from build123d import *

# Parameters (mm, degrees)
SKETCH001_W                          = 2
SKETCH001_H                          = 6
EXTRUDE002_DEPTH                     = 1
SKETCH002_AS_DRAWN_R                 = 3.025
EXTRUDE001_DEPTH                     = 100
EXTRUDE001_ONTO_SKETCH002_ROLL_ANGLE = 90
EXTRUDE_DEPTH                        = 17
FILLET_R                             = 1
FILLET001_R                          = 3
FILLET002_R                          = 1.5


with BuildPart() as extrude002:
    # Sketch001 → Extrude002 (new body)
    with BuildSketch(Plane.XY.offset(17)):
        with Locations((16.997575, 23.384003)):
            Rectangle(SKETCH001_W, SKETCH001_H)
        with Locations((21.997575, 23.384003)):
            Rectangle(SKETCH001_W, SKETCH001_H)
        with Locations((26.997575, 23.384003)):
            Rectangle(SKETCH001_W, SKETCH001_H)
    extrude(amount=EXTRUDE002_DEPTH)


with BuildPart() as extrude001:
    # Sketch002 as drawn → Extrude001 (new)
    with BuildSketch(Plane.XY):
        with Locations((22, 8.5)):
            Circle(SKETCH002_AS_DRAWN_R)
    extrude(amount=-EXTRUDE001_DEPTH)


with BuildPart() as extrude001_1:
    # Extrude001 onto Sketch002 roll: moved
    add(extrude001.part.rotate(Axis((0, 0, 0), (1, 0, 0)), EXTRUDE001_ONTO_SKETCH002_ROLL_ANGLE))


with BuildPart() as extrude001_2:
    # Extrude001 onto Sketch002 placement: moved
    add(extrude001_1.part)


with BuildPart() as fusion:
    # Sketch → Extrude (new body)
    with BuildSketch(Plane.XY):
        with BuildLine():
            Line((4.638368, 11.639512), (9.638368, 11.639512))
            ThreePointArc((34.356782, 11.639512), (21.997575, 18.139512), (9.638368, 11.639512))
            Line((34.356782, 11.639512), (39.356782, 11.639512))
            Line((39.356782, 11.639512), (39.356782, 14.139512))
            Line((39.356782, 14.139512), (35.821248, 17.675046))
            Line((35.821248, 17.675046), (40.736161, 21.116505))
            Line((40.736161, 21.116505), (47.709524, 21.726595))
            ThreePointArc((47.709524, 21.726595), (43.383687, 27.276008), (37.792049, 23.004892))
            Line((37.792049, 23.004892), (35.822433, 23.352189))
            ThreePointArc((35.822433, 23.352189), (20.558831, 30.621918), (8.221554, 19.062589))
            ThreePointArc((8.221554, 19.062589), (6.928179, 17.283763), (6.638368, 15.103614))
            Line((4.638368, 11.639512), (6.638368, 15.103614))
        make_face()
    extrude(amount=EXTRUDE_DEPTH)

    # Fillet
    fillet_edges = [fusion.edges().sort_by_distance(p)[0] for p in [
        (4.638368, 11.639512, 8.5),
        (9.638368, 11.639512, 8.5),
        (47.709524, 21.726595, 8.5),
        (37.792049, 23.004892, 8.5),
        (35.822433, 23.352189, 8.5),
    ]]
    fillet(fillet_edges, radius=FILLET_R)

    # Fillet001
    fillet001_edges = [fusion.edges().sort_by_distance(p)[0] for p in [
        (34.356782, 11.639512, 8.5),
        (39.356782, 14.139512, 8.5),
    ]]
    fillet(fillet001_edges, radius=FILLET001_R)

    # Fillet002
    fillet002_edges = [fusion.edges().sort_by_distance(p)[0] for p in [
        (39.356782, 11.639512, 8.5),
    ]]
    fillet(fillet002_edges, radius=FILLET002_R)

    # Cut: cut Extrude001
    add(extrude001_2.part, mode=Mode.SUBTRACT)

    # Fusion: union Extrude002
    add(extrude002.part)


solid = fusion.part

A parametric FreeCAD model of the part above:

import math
import FreeCAD as App
import Part
import Sketcher
Q = App.Units.Quantity


def edges_at(feature, points):
    """Names of the edges that pass closest to the given points."""
    edges = feature.Shape.Edges
    near = lambda p: min(range(len(edges)), key=lambda i: edges[i].distToShape(Part.Vertex(*p))[0])
    return sorted({f"Edge{near(p) + 1}" for p in points})

doc = App.newDocument("Part")
body = doc.addObject("PartDesign::Body", "Body")
body.AllowCompound = True

# Sketch on XY plane
sketch1 = body.newObject("Sketcher::SketchObject", "Sketch")
sketch1.AttachmentSupport = (doc.getObject("XY_Plane"), [""])
sketch1.MapMode = "FlatFace"
sketch1.AttachmentOffset = App.Placement(App.Vector(0, 0, 17), App.Rotation())
sketch1.addGeometry([
    Part.LineSegment(App.Vector(15.997575, 26.384003, 0), App.Vector(15.997575, 20.384003, 0)),  # 0
    Part.LineSegment(App.Vector(15.997575, 20.384003, 0), App.Vector(17.997575, 20.384003, 0)),  # 1
    Part.LineSegment(App.Vector(17.997575, 20.384003, 0), App.Vector(17.997575, 26.384003, 0)),  # 2
    Part.LineSegment(App.Vector(17.997575, 26.384003, 0), App.Vector(15.997575, 26.384003, 0)),  # 3
    Part.LineSegment(App.Vector(20.997575, 26.384003, 0), App.Vector(20.997575, 20.384003, 0)),  # 4
    Part.LineSegment(App.Vector(20.997575, 20.384003, 0), App.Vector(22.997575, 20.384003, 0)),  # 5
    Part.LineSegment(App.Vector(22.997575, 20.384003, 0), App.Vector(22.997575, 26.384003, 0)),  # 6
    Part.LineSegment(App.Vector(22.997575, 26.384003, 0), App.Vector(20.997575, 26.384003, 0)),  # 7
    Part.LineSegment(App.Vector(25.997575, 26.384003, 0), App.Vector(25.997575, 20.384003, 0)),  # 8
    Part.LineSegment(App.Vector(25.997575, 20.384003, 0), App.Vector(27.997575, 20.384003, 0)),  # 9
    Part.LineSegment(App.Vector(27.997575, 20.384003, 0), App.Vector(27.997575, 26.384003, 0)),  # 10
    Part.LineSegment(App.Vector(27.997575, 26.384003, 0), App.Vector(25.997575, 26.384003, 0)),  # 11
], False)
sketch1.addConstraint([
    Sketcher.Constraint("Coincident", 0, 2, 1, 1),
    Sketcher.Constraint("Coincident", 1, 2, 2, 1),
    Sketcher.Constraint("Coincident", 2, 2, 3, 1),
    Sketcher.Constraint("Coincident", 3, 2, 0, 1),
    Sketcher.Constraint("Coincident", 4, 2, 5, 1),
    Sketcher.Constraint("Coincident", 5, 2, 6, 1),
    Sketcher.Constraint("Coincident", 6, 2, 7, 1),
    Sketcher.Constraint("Coincident", 7, 2, 4, 1),
    Sketcher.Constraint("Coincident", 8, 2, 9, 1),
    Sketcher.Constraint("Coincident", 9, 2, 10, 1),
    Sketcher.Constraint("Coincident", 10, 2, 11, 1),
    Sketcher.Constraint("Coincident", 11, 2, 8, 1),
    Sketcher.Constraint("Vertical", 0),
    Sketcher.Constraint("Horizontal", 1),
    Sketcher.Constraint("Vertical", 2),
    Sketcher.Constraint("Horizontal", 3),
    Sketcher.Constraint("Vertical", 4),
    Sketcher.Constraint("Horizontal", 5),
    Sketcher.Constraint("Vertical", 6),
    Sketcher.Constraint("Horizontal", 7),
    Sketcher.Constraint("Vertical", 8),
    Sketcher.Constraint("Horizontal", 9),
    Sketcher.Constraint("Vertical", 10),
    Sketcher.Constraint("Horizontal", 11),
    Sketcher.Constraint("Horizontal", 1, 2, 4, 2),
    Sketcher.Constraint("Horizontal", 3, 2, 6, 2),
    Sketcher.Constraint("Horizontal", 5, 2, 8, 2),
    Sketcher.Constraint("Horizontal", 7, 2, 10, 2),
    Sketcher.Constraint("Equal", 3, 5),
    Sketcher.Constraint("Equal", 7, 9),
    Sketcher.Constraint("DistanceX", 1, 1, 1, 2, 2.0),
    Sketcher.Constraint("DistanceY", 0, 2, 0, 1, 6.0),
    Sketcher.Constraint("DistanceX", 1, 2, 4, 2, 3.0),
    Sketcher.Constraint("DistanceX", 5, 2, 8, 2, 3.0),
    Sketcher.Constraint("DistanceX", -1, 1, 0, 2, 15.997575),
    Sketcher.Constraint("DistanceY", -1, 1, 0, 2, 20.384003),
])
pad1 = body.newObject("PartDesign::Pad", "Pad")
pad1.Profile = sketch1
pad1.Length = 1
body2 = doc.addObject("PartDesign::Body", "Body001")

# Sketch on XY plane
sketch2 = body2.newObject("Sketcher::SketchObject", "Sketch001")
sketch2.AttachmentSupport = (doc.getObject("XY_Plane001"), [""])
sketch2.MapMode = "FlatFace"
sketch2.addGeometry(Part.Circle(App.Vector(22, 8.5, 0), App.Vector(0, 0, 1), 3.025), False)
sketch2.addConstraint([
    Sketcher.Constraint("Diameter", 0, 6.05),
    Sketcher.Constraint("DistanceX", -1, 1, 0, 3, 22.0),
    Sketcher.Constraint("DistanceY", -1, 1, 0, 3, 8.5),
])
pad2 = body2.newObject("PartDesign::Pad", "Pad001")
pad2.Profile = sketch2
pad2.Length = 100
pad2.Reversed = True
body3 = doc.addObject("PartDesign::Body", "Body002")
doc.recompute()

body2.Placement = App.Placement(App.Vector(0, 0, 0), App.Rotation(App.Vector(1, 0, 0), 90))
boolean = body3.newObject("PartDesign::Boolean", "Boolean")
boolean.Type = "Fuse"
boolean.addObjects([body2])
body4 = doc.addObject("PartDesign::Body", "Body003")

# Sketch on XY plane
sketch3 = body4.newObject("Sketcher::SketchObject", "Sketch002")
sketch3.AttachmentSupport = (doc.getObject("XY_Plane003"), [""])
sketch3.MapMode = "FlatFace"
sketch3.addGeometry([
    Part.LineSegment(App.Vector(4.638368, 11.639512, 0), App.Vector(9.638368, 11.639512, 0)),  # 0
    Part.ArcOfCircle(Part.Circle(App.Vector(21.997575, 3.139512, 0), App.Vector(0, 0, 1), 15), math.radians(34.518107), math.radians(145.481893)),  # 1
    Part.LineSegment(App.Vector(34.356782, 11.639512, 0), App.Vector(39.356782, 11.639512, 0)),  # 2
    Part.LineSegment(App.Vector(39.356782, 11.639512, 0), App.Vector(39.356782, 14.139512, 0)),  # 3
    Part.LineSegment(App.Vector(39.356782, 14.139512, 0), App.Vector(35.821248, 17.675046, 0)),  # 4
    Part.LineSegment(App.Vector(35.821248, 17.675046, 0), App.Vector(40.736161, 21.116505, 0)),  # 5
    Part.LineSegment(App.Vector(40.736161, 21.116505, 0), App.Vector(47.709524, 21.726595, 0)),  # 6
    Part.ArcOfCircle(Part.Circle(App.Vector(42.744508, 22.317031, 0), App.Vector(0, 0, 1), 5), math.radians(-6.781725), math.radians(172.092619)),  # 7
    Part.LineSegment(App.Vector(37.792049, 23.004892, 0), App.Vector(35.822433, 23.352189, 0)),  # 8
    Part.ArcOfCircle(Part.Circle(App.Vector(22.862407, 15.799855, 0), App.Vector(0, 0, 1), 15.000001), math.radians(30.231095), math.radians(167.436846)),  # 9
    Part.ArcOfCircle(Part.Circle(App.Vector(11.083526, 15.622049, 0), App.Vector(0, 0, 1), 4.475288), math.radians(129.754963), math.radians(186.652299)),  # 10
    Part.LineSegment(App.Vector(6.638368, 15.103614, 0), App.Vector(4.638368, 11.639512, 0)),  # 11
], False)
sketch3.addConstraint([
    Sketcher.Constraint("Coincident", 0, 2, 1, 2),
    Sketcher.Constraint("Coincident", 1, 1, 2, 1),
    Sketcher.Constraint("Coincident", 2, 2, 3, 1),
    Sketcher.Constraint("Coincident", 3, 2, 4, 1),
    Sketcher.Constraint("Coincident", 4, 2, 5, 1),
    Sketcher.Constraint("Coincident", 5, 2, 6, 1),
    Sketcher.Constraint("Coincident", 6, 2, 7, 1),
    Sketcher.Constraint("Coincident", 7, 2, 8, 1),
    Sketcher.Constraint("Coincident", 8, 2, 9, 1),
    Sketcher.Constraint("Coincident", 9, 2, 10, 1),
    Sketcher.Constraint("Coincident", 10, 2, 11, 1),
    Sketcher.Constraint("Coincident", 11, 2, 0, 1),
    Sketcher.Constraint("Horizontal", 0),
    Sketcher.Constraint("Horizontal", 2),
    Sketcher.Constraint("Vertical", 3),
    Sketcher.Constraint("Equal", 1, 9),
    Sketcher.Constraint("Horizontal", 0, 2, 1, 1),
    Sketcher.Constraint("Equal", 0, 2),
    Sketcher.Constraint("Radius", 1, 15.0),
    Sketcher.Constraint("Radius", 7, 5.0),
    Sketcher.Constraint("DistanceX", 0, 1, 0, 2, 5.0),
    Sketcher.Constraint("Angle", 4, Q("135 deg")),
    Sketcher.Constraint("Angle", 5, Q("34.999999 deg")),
    Sketcher.Constraint("Angle", 6, Q("4.999998 deg")),
    Sketcher.Constraint("Angle", 8, Q("169.999984 deg")),
    Sketcher.Constraint("Angle", 11, Q("-119.999997 deg")),
    Sketcher.Constraint("Distance", 4, 5.0),
    Sketcher.Constraint("Distance", 5, 6.000001),
    Sketcher.Constraint("Distance", 6, 7.0),
    Sketcher.Constraint("Distance", 8, 2.000001),
    Sketcher.Constraint("Distance", 11, 4.0),
    Sketcher.Constraint("DistanceY", 3, 1, 3, 2, 2.5),
    Sketcher.Constraint("DistanceY", 1, 3, 3, 2, 11.0),
    Sketcher.Constraint("Radius", 10, 4.475288),
    Sketcher.Constraint("DistanceX", 9, 3, 7, 3, 19.882101),
    Sketcher.Constraint("DistanceX", 4, 2, 7, 2, 1.970801),
    Sketcher.Constraint("DistanceY", -1, 1, 7, 3, 22.317031),
    Sketcher.Constraint("DistanceY", -1, 1, 10, 3, 15.622049),
    Sketcher.Constraint("DistanceX", -1, 1, 5, 2, 40.736161),
    Sketcher.Constraint("DistanceY", -1, 1, 8, 2, 23.352189),
])
pad3 = body4.newObject("PartDesign::Pad", "Pad002")
pad3.Profile = sketch3
pad3.Length = 17
doc.recompute()

fillet = body4.newObject("PartDesign::Fillet", "Fillet")
fillet.Base = (pad3, edges_at(pad3, [
    (4.638, 11.64, 8.5),
    (9.638, 11.64, 8.5),
    (47.71, 21.727, 8.5),
    (37.792, 23.005, 8.5),
    (35.822, 23.352, 8.5),
]))
fillet.Radius = 1
doc.recompute()

fillet2 = body4.newObject("PartDesign::Fillet", "Fillet001")
fillet2.Base = (fillet, edges_at(fillet, [(34.357, 11.64, 8.5), (39.357, 14.14, 8.5)]))
fillet2.Radius = 3
doc.recompute()

fillet3 = body4.newObject("PartDesign::Fillet", "Fillet002")
fillet3.Base = (fillet2, edges_at(fillet2, [(39.357, 11.64, 8.5)]))
fillet3.Radius = 1.5
doc.recompute()

boolean2 = body4.newObject("PartDesign::Boolean", "Boolean001")
boolean2.Type = "Cut"
boolean2.addObjects([body3])
doc.recompute()

boolean3 = body4.newObject("PartDesign::Boolean", "Boolean002")
boolean3.Type = "Fuse"
boolean3.addObjects([body])

doc.recompute()
